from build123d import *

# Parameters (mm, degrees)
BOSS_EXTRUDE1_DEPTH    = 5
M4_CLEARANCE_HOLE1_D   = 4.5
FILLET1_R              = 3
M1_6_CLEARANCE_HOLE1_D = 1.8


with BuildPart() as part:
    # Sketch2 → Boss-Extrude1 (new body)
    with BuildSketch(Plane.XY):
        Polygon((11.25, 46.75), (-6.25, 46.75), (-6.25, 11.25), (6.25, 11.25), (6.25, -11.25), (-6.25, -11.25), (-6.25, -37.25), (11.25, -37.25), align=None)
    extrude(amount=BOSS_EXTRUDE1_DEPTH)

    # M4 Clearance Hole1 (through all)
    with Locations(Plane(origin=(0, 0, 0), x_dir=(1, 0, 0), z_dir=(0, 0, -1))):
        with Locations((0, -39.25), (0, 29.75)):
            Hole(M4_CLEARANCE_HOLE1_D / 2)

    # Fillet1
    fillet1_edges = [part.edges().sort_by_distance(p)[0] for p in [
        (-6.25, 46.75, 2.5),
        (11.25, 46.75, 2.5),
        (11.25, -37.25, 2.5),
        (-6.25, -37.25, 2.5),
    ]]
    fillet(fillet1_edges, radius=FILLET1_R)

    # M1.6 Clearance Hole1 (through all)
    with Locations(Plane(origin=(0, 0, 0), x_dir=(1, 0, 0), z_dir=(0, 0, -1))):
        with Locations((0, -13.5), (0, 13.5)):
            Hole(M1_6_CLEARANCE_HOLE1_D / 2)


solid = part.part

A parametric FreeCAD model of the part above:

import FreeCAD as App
import Part
import Sketcher
from FreeCAD import Vector


def edges_at(feature, points):
    """Names of the edges that pass closest to the given points."""
    edges = feature.Shape.Edges
    near = lambda p: min(range(len(edges)), key=lambda i: edges[i].distToShape(Part.Vertex(*p))[0])
    return sorted({f"Edge{near(p) + 1}" for p in points})


def add_polygon(sketch, points):
    """Adds a closed chain of lines whose ends are joined by coincident constraints."""
    first, n = sketch.GeometryCount, len(points)
    for a, b in zip(points, points[1:] + points[:1]):
        sketch.addGeometry(Part.LineSegment(App.Vector(*a, 0), App.Vector(*b, 0)), False)
    for i in range(n):
        sketch.addConstraint(Sketcher.Constraint("Coincident", first + i, 2, first + (i + 1) % n, 1))

doc = App.newDocument("Part")
body = doc.addObject("PartDesign::Body", "Body")

# Sketch on XY plane
sketch1 = body.newObject("Sketcher::SketchObject", "Sketch")
sketch1.AttachmentSupport = (doc.getObject("XY_Plane"), [""])
sketch1.MapMode = "FlatFace"
add_polygon(sketch1, [(11, 47), (-6, 47), (-6, 11), (6, 11), (6, -11), (-6, -11), (-6, -37), (11, -37)])  # lines 0-7
sketch1.addConstraint([
    Sketcher.Constraint("Horizontal", 0),
    Sketcher.Constraint("Vertical", 1),
    Sketcher.Constraint("Horizontal", 2),
    Sketcher.Constraint("Vertical", 3),
    Sketcher.Constraint("Horizontal", 4),
    Sketcher.Constraint("Vertical", 5),
    Sketcher.Constraint("Horizontal", 6),
    Sketcher.Constraint("Vertical", 7),
    Sketcher.Constraint("Symmetric", 1, 2, 3, 2, -1, 1),
    Sketcher.Constraint("Vertical", 1, 2, 4, 2),
    Sketcher.Constraint("DistanceY", 5, 2, 5, 1, 26.0),
    Sketcher.Constraint("DistanceY", 7, 1, 7, 2, 84.0),
    Sketcher.Constraint("DistanceX", 0, 2, 0, 1, 17.5),
    Sketcher.Constraint("DistanceX", 2, 1, 2, 2, 12.5),
    Sketcher.Constraint("DistanceY", 1, 2, 1, 1, 35.5),
])
pad1 = body.newObject("PartDesign::Pad", "Pad")
pad1.Profile = sketch1
pad1.Length = 5

# Sketch on XY plane
sketch2 = body.newObject("Sketcher::SketchObject", "Sketch001")
sketch2.AttachmentSupport = (doc.getObject("XY_Plane"), [""])
sketch2.MapMode = "FlatFace"
sketch2.addGeometry([
    Part.Circle(Vector(0, 39.2, 0), Vector(0, 0, 1), 2.2),
    Part.Circle(Vector(0, -29.8, 0), Vector(0, 0, 1), 2.2),
], False)
sketch2.addConstraint([
    Sketcher.Constraint("Equal", 0, 1),
    Sketcher.Constraint("PointOnObject", 0, 3, -2),
    Sketcher.Constraint("PointOnObject", 1, 3, -2),
    Sketcher.Constraint("Diameter", 0, 4.5),
    Sketcher.Constraint("DistanceY", 1, 3, 0, 3, 69.0),
    Sketcher.Constraint("DistanceY", -1, 1, 0, 3, 39.25),
])
doc.recompute()
hole = body.newObject("PartDesign::Hole", "Hole")
hole.Profile = sketch2
hole.ThreadType = "None"
hole.Diameter = 4.5
hole.DepthType = "ThroughAll"
hole.Reversed = True
doc.recompute()

fillet = body.newObject("PartDesign::Fillet", "Fillet")
fillet.Base = (hole, edges_at(hole, [
    (-6.25, 46.75, 2.5),
    (11.25, 46.75, 2.5),
    (11.25, -37.25, 2.5),
    (-6.25, -37.25, 2.5),
]))
fillet.Radius = 3

# Sketch on XY plane
sketch3 = body.newObject("Sketcher::SketchObject", "Sketch002")
sketch3.AttachmentSupport = (doc.getObject("XY_Plane"), [""])
sketch3.MapMode = "FlatFace"
sketch3.addGeometry([
    Part.Circle(Vector(0, 13.5, 0), Vector(0, 0, 1), 0.9),
    Part.Circle(Vector(0, -13.5, 0), Vector(0, 0, 1), 0.9),
], False)
sketch3.addConstraint([
    Sketcher.Constraint("Equal", 0, 1),
    Sketcher.Constraint("Symmetric", 0, 3, 1, 3, -1, 1),
    Sketcher.Constraint("PointOnObject", 0, 3, -2),
    Sketcher.Constraint("Diameter", 0, 1.8),
    Sketcher.Constraint("DistanceY", 1, 3, 0, 3, 27.0),
])
doc.recompute()
hole2 = body.newObject("PartDesign::Hole", "Hole001")
hole2.Profile = sketch3
hole2.ThreadType = "None"
hole2.Diameter = 1.8
hole2.DepthType = "ThroughAll"
hole2.Reversed = True

doc.recompute()
